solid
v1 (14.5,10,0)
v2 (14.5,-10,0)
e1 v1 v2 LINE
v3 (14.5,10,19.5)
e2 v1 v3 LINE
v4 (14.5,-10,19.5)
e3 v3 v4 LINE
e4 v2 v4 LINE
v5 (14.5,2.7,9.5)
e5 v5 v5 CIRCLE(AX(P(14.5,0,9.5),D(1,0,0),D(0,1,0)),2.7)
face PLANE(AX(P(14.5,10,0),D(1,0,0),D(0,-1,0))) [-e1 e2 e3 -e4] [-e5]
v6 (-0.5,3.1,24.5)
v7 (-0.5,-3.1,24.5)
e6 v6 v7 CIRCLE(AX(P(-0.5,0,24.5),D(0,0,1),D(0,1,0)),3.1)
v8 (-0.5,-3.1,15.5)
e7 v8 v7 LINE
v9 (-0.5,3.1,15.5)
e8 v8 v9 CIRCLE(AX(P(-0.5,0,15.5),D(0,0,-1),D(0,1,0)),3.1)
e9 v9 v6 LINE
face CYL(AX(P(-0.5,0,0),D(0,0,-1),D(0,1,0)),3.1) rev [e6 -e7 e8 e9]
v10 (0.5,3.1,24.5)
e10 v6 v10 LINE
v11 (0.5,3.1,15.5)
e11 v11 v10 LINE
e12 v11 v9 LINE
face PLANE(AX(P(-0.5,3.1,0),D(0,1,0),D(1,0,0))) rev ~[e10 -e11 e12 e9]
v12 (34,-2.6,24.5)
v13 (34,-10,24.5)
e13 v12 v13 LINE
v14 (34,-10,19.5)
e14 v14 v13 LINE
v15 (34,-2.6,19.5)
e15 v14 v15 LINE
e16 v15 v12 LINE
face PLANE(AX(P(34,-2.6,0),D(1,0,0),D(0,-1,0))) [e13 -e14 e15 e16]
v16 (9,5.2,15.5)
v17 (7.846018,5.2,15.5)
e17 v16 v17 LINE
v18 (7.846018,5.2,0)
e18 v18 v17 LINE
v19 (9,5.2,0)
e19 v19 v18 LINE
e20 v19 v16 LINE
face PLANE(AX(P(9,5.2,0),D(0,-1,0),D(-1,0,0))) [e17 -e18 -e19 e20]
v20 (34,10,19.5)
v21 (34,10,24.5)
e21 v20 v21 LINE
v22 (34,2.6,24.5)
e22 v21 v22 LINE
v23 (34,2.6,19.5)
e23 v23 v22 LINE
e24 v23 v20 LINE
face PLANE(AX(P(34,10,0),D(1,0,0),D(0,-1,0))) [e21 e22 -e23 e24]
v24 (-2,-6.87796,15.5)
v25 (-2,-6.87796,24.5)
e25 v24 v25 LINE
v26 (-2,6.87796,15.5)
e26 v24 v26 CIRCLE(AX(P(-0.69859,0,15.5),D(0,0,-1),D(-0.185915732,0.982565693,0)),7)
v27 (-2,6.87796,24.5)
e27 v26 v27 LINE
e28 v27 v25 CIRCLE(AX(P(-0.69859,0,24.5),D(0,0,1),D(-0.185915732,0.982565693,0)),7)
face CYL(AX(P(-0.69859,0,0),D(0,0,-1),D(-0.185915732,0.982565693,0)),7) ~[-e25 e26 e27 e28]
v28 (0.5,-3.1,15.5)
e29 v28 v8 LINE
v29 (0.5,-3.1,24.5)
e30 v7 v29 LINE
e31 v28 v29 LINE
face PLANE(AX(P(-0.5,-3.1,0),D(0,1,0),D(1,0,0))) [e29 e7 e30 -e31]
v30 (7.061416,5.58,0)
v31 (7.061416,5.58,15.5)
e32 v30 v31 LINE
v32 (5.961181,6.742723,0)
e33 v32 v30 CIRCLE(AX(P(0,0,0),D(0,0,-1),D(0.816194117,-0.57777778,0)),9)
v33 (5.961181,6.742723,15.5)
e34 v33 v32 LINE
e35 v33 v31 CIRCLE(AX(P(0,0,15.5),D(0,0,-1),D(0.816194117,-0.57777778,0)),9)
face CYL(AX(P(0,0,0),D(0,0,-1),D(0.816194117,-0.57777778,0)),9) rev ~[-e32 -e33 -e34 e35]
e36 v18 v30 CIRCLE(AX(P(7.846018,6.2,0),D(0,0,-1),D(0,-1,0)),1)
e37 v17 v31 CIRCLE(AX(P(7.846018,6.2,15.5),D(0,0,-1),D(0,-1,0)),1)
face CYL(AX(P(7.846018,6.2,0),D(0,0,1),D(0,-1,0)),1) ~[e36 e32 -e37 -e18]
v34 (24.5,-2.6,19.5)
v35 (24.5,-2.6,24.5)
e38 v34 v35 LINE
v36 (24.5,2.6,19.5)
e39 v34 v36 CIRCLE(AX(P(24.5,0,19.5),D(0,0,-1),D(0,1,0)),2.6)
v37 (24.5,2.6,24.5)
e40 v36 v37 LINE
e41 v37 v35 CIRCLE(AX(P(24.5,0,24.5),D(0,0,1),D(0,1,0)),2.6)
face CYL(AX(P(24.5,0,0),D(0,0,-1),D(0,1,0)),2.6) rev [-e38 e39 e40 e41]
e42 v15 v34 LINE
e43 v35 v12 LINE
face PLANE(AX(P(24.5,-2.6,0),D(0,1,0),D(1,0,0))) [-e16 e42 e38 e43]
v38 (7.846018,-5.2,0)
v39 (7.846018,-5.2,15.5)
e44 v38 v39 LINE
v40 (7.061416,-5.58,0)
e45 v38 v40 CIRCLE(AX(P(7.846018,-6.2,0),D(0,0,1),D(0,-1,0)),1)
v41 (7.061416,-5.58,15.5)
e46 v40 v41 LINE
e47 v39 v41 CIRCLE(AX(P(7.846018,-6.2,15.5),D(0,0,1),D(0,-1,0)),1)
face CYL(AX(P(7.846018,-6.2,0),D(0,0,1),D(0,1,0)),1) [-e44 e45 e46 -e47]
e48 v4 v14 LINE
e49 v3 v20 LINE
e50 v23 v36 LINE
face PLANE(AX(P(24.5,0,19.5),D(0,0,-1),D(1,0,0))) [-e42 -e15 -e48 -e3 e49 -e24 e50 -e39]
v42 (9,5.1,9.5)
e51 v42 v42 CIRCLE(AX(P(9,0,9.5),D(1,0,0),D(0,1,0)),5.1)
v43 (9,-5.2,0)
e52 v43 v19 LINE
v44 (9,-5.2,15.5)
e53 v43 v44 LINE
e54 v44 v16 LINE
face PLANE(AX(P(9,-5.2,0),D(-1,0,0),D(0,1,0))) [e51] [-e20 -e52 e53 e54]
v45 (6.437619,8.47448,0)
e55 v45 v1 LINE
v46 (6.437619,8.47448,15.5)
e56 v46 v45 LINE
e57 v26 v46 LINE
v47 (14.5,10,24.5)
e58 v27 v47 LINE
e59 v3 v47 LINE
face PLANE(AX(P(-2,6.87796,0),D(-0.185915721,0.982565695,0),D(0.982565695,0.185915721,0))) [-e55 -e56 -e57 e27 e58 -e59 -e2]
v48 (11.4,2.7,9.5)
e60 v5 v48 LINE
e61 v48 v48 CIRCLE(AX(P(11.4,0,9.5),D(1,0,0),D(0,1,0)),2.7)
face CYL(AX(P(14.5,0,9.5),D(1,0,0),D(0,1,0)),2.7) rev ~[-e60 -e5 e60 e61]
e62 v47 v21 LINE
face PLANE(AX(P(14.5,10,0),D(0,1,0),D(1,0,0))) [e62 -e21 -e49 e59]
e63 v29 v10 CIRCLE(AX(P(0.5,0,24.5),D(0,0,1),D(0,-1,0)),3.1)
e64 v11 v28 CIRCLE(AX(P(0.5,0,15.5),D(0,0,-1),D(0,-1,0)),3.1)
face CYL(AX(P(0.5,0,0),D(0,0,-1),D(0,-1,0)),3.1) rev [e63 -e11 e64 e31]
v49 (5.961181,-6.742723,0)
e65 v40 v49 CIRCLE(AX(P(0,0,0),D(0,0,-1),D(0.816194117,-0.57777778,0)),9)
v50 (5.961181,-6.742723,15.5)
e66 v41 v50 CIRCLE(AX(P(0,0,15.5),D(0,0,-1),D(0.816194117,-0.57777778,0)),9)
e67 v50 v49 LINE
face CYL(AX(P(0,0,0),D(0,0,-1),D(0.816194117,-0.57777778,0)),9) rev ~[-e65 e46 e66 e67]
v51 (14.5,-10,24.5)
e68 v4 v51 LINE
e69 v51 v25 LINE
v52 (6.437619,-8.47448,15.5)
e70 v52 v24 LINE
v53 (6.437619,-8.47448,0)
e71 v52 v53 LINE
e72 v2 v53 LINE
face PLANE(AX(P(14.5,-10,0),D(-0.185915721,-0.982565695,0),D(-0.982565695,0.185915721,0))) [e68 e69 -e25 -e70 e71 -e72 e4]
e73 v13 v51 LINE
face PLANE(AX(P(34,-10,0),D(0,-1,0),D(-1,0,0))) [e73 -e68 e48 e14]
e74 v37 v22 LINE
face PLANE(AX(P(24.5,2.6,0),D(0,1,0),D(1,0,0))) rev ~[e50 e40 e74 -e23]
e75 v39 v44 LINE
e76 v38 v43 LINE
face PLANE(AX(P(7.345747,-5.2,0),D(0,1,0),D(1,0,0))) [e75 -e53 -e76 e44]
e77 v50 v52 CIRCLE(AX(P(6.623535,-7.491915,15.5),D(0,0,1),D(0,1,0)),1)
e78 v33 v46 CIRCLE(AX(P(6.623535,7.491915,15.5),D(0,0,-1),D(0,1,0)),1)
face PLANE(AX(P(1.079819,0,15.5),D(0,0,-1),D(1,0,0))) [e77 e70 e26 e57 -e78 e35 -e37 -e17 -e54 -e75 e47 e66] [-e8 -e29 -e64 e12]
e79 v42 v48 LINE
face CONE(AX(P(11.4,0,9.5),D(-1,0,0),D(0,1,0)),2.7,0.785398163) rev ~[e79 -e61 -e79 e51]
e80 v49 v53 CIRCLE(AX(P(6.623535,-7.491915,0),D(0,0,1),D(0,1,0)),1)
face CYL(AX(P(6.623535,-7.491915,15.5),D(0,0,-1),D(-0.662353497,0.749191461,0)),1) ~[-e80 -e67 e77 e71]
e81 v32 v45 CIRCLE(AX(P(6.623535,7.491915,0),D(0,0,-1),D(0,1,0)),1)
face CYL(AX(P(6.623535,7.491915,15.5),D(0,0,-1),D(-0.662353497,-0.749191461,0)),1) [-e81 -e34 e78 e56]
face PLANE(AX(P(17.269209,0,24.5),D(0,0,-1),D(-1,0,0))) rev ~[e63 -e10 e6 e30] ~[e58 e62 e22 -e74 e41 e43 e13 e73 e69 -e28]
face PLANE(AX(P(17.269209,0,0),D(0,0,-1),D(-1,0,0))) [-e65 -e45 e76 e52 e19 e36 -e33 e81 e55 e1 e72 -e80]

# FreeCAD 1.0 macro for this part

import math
import FreeCAD as App
import Part
import Sketcher


def edges_at(feature, points):
    """Names of the edges that pass closest to the given points."""
    edges = feature.Shape.Edges
    near = lambda p: min(range(len(edges)), key=lambda i: edges[i].distToShape(Part.Vertex(*p))[0])
    return sorted({f"Edge{near(p) + 1}" for p in points})


def add_polygon(sketch, points):
    """Adds a closed chain of lines whose ends are joined by coincident constraints."""
    first, n = sketch.GeometryCount, len(points)
    for a, b in zip(points, points[1:] + points[:1]):
        sketch.addGeometry(Part.LineSegment(App.Vector(*a, 0), App.Vector(*b, 0)), False)
    for i in range(n):
        sketch.addConstraint(Sketcher.Constraint("Coincident", first + i, 2, first + (i + 1) % n, 1))

doc = App.newDocument("Part")
params = doc.addObject("Spreadsheet::Sheet", "Params")
for row, (alias, value) in enumerate([
    ("sketch1_radius", "7 mm"),
    ("sketch1_radius2", "2.6 mm"),
    ("sketch1_radius3", "3.1 mm"),
    ("sketch1_width", "1 mm"),
    ("sketch1_width2", "19.5 mm"),
    ("pad1_length", "24.5 mm"),
    ("sketch2_width", "15 mm"),
    ("sketch2_height", "12 mm"),
    ("pocket1_length", "14.5 mm"),
    ("sketch3_width", "20 mm"),
    ("pocket2_length", "19.5 mm"),
    ("sketch4_diameter", "5.4 mm"),
    ("sketch5_radius", "9 mm"),
    ("sketch5_height", "10.4 mm"),
    ("pocket4_length", "15.5 mm"),
    ("chamfer_size", "2.4 mm"),
    ("fillet_radius", "1 mm"),
], start=1):
    params.set(f"A{row}", alias)
    params.set(f"B{row}", "=" + value)
    params.setAlias(f"B{row}", alias)

body = doc.addObject("PartDesign::Body", "Body")

sketch1 = body.newObject("Sketcher::SketchObject", "Sketch")
sketch1.AttachmentSupport = (doc.getObject("XY_Plane"), [""])
sketch1.MapMode = "FlatFace"
sketch1.addGeometry(Part.LineSegment(App.Vector(14.5, 10, 0), App.Vector(-2, 6.87796, 0)), False)
sketch1.addGeometry(Part.ArcOfCircle(Part.Circle(App.Vector(-0.69859, 0, 0), App.Vector(0, 0, 1), 7), math.radians(100.714526), math.radians(259.285474)), False)
sketch1.addGeometry(Part.LineSegment(App.Vector(-2, -6.87796, 0), App.Vector(14.5, -10, 0)), False)
sketch1.addGeometry(Part.LineSegment(App.Vector(14.5, -10, 0), App.Vector(34, -10, 0)), False)
sketch1.addGeometry(Part.LineSegment(App.Vector(34, -10, 0), App.Vector(34, -2.6, 0)), False)
sketch1.addGeometry(Part.LineSegment(App.Vector(34, -2.6, 0), App.Vector(24.5, -2.6, 0)), False)
sketch1.addGeometry(Part.ArcOfCircle(Part.Circle(App.Vector(24.5, 0, 0), App.Vector(0, 0, 1), 2.6), math.radians(90), math.radians(270)), False)
sketch1.addGeometry(Part.LineSegment(App.Vector(24.5, 2.6, 0), App.Vector(34, 2.6, 0)), False)
sketch1.addGeometry(Part.LineSegment(App.Vector(34, 2.6, 0), App.Vector(34, 10, 0)), False)
sketch1.addGeometry(Part.LineSegment(App.Vector(34, 10, 0), App.Vector(14.5, 10, 0)), False)
sketch1.addGeometry(Part.LineSegment(App.Vector(-0.5, 3.1, 0), App.Vector(0.5, 3.1, 0)), False)
sketch1.addGeometry(Part.ArcOfCircle(Part.Circle(App.Vector(0.5, 0, 0), App.Vector(0, 0, 1), 3.1), math.radians(-90), math.radians(90)), False)
sketch1.addGeometry(Part.LineSegment(App.Vector(0.5, -3.1, 0), App.Vector(-0.5, -3.1, 0)), False)
sketch1.addGeometry(Part.ArcOfCircle(Part.Circle(App.Vector(-0.5, 0, 0), App.Vector(0, 0, 1), 3.1), math.radians(90), math.radians(270)), False)
sketch1.addConstraint(Sketcher.Constraint("Tangent", 0, 2, 1, 1))
sketch1.addConstraint(Sketcher.Constraint("Tangent", 1, 2, 2, 1))
sketch1.addConstraint(Sketcher.Constraint("Coincident", 2, 2, 3, 1))
sketch1.addConstraint(Sketcher.Constraint("Coincident", 3, 2, 4, 1))
sketch1.addConstraint(Sketcher.Constraint("Coincident", 4, 2, 5, 1))
sketch1.addConstraint(Sketcher.Constraint("Tangent", 5, 2, 6, 2))
sketch1.addConstraint(Sketcher.Constraint("Tangent", 6, 1, 7, 1))
sketch1.addConstraint(Sketcher.Constraint("Coincident", 7, 2, 8, 1))
sketch1.addConstraint(Sketcher.Constraint("Coincident", 8, 2, 9, 1))
sketch1.addConstraint(Sketcher.Constraint("Coincident", 9, 2, 0, 1))
sketch1.addConstraint(Sketcher.Constraint("Tangent", 10, 2, 11, 2))
sketch1.addConstraint(Sketcher.Constraint("Tangent", 11, 1, 12, 1))
sketch1.addConstraint(Sketcher.Constraint("Tangent", 12, 2, 13, 2))
sketch1.addConstraint(Sketcher.Constraint("Tangent", 13, 1, 10, 1))
sketch1.addConstraint(Sketcher.Constraint("Horizontal", 3))
sketch1.addConstraint(Sketcher.Constraint("Vertical", 4))
sketch1.addConstraint(Sketcher.Constraint("Horizontal", 5))
sketch1.addConstraint(Sketcher.Constraint("Horizontal", 7))
sketch1.addConstraint(Sketcher.Constraint("Vertical", 8))
sketch1.addConstraint(Sketcher.Constraint("Horizontal", 9))
sketch1.addConstraint(Sketcher.Constraint("Horizontal", 10))
sketch1.addConstraint(Sketcher.Constraint("Horizontal", 12))
sketch1.addConstraint(Sketcher.Constraint("Symmetric", 11, 3, 13, 3, -1, 1))
sketch1.addConstraint(Sketcher.Constraint("Symmetric", 0, 2, 1, 2, -1))
sketch1.addConstraint(Sketcher.Constraint("Symmetric", 4, 2, 7, 2, -1))
sketch1.addConstraint(Sketcher.Constraint("Vertical", 2, 2, 9, 2))
sketch1.addConstraint(Sketcher.Constraint("Radius", 1, 7.0))
sketch1.addConstraint(Sketcher.Constraint("Radius", 6, 2.6))
sketch1.addConstraint(Sketcher.Constraint("Radius", 11, 3.1))
sketch1.addConstraint(Sketcher.Constraint("DistanceX", 10, 1, 10, 2, 1.0))
sketch1.addConstraint(Sketcher.Constraint("DistanceX", 3, 1, 3, 2, 19.5))
sketch1.addConstraint(Sketcher.Constraint("DistanceX", 5, 2, 5, 1, 9.5))
sketch1.addConstraint(Sketcher.Constraint("DistanceY", 4, 1, 4, 2, 7.4))
sketch1.addConstraint(Sketcher.Constraint("DistanceX", 0, 2, -1, 1, 2.0))
sketch1.addConstraint(Sketcher.Constraint("DistanceX", -1, 1, 3, 2, 34.0))
sketch1.setExpression("Constraints[26]", "Params.sketch1_radius")
sketch1.setExpression("Constraints[27]", "Params.sketch1_radius2")
sketch1.setExpression("Constraints[28]", "Params.sketch1_radius3")
sketch1.setExpression("Constraints[29]", "Params.sketch1_width")
sketch1.setExpression("Constraints[30]", "Params.sketch1_width2")
pad1 = body.newObject("PartDesign::Pad", "Pad")
pad1.Profile = sketch1
pad1.setExpression("Length", "Params.pad1_length")

sketch2 = body.newObject("Sketcher::SketchObject", "Sketch001")
sketch2.AttachmentSupport = (doc.getObject("YZ_Plane"), [""])
sketch2.MapMode = "FlatFace"
sketch2.AttachmentOffset = App.Placement(App.Vector(0, 0, 34), App.Rotation())
add_polygon(sketch2, [(-5.5, 6), (-5.5, -6), (9.5, -6), (9.5, 6)])
sketch2.addConstraint(Sketcher.Constraint("Vertical", 0))
sketch2.addConstraint(Sketcher.Constraint("Horizontal", 1))
sketch2.addConstraint(Sketcher.Constraint("Vertical", 2))
sketch2.addConstraint(Sketcher.Constraint("Horizontal", 3))
sketch2.addConstraint(Sketcher.Constraint("DistanceX", 1, 1, 1, 2, 15.0))
sketch2.addConstraint(Sketcher.Constraint("DistanceY", 0, 2, 0, 1, 12.0))
sketch2.addConstraint(Sketcher.Constraint("DistanceY", 0, 2, -1, 1, 6.0))
sketch2.addConstraint(Sketcher.Constraint("DistanceX", 0, 2, -1, 1, 5.5))
sketch2.setExpression("Constraints[8]", "Params.sketch2_width")
sketch2.setExpression("Constraints[9]", "Params.sketch2_height")
pocket1 = body.newObject("PartDesign::Pocket", "Pocket")
pocket1.Profile = sketch2
pocket1.setExpression("Length", "Params.pocket1_length")

sketch3 = body.newObject("Sketcher::SketchObject", "Sketch002")
sketch3.AttachmentSupport = (doc.getObject("XY_Plane"), [""])
sketch3.MapMode = "FlatFace"
add_polygon(sketch3, [(14.5, -10), (14.5, 10), (34.5, 10), (34.5, -10)])
sketch3.addConstraint(Sketcher.Constraint("Vertical", 0))
sketch3.addConstraint(Sketcher.Constraint("Horizontal", 1))
sketch3.addConstraint(Sketcher.Constraint("Vertical", 2))
sketch3.addConstraint(Sketcher.Constraint("Horizontal", 3))
sketch3.addConstraint(Sketcher.Constraint("Equal", 3, 0))
sketch3.addConstraint(Sketcher.Constraint("DistanceX", 1, 1, 1, 2, 20.0))
sketch3.addConstraint(Sketcher.Constraint("DistanceY", -1, 1, 0, 2, 10.0))
sketch3.addConstraint(Sketcher.Constraint("DistanceX", -1, 1, 0, 2, 14.5))
sketch3.setExpression("Constraints[9]", "Params.sketch3_width")
pocket2 = body.newObject("PartDesign::Pocket", "Pocket001")
pocket2.Profile = sketch3
pocket2.setExpression("Length", "Params.pocket2_length")
pocket2.Reversed = True

sketch4 = body.newObject("Sketcher::SketchObject", "Sketch003")
sketch4.AttachmentSupport = (doc.getObject("YZ_Plane"), [""])
sketch4.MapMode = "FlatFace"
sketch4.AttachmentOffset = App.Placement(App.Vector(0, 0, 14.5), App.Rotation())
sketch4.addGeometry(Part.Circle(App.Vector(0, 9.5, 0), App.Vector(0, 0, 1), 2.7), False)
sketch4.addConstraint(Sketcher.Constraint("PointOnObject", 0, 3, -2))
sketch4.addConstraint(Sketcher.Constraint("Diameter", 0, 5.4))
sketch4.addConstraint(Sketcher.Constraint("DistanceY", -1, 1, 0, 3, 9.5))
sketch4.setExpression("Constraints[1]", "Params.sketch4_diameter")
pocket3 = body.newObject("PartDesign::Pocket", "Pocket002")
pocket3.Profile = sketch4
pocket3.Type = "ThroughAll"

sketch5 = body.newObject("Sketcher::SketchObject", "Sketch004")
sketch5.AttachmentSupport = (doc.getObject("XY_Plane"), [""])
sketch5.MapMode = "FlatFace"
sketch5.addGeometry(Part.ArcOfCircle(Part.Circle(App.Vector(0, 0, 0), App.Vector(0, 0, 1), 9), math.radians(35.294395), math.radians(324.705605)), False)
sketch5.addGeometry(Part.LineSegment(App.Vector(7.345747, 5.2, 0), App.Vector(9, 5.2, 0)), False)
sketch5.addGeometry(Part.LineSegment(App.Vector(9, 5.2, 0), App.Vector(9, -5.2, 0)), False)
sketch5.addGeometry(Part.LineSegment(App.Vector(9, -5.2, 0), App.Vector(7.345747, -5.2, 0)), False)
sketch5.addConstraint(Sketcher.Constraint("Coincident", 0, 1, 1, 1))
sketch5.addConstraint(Sketcher.Constraint("Coincident", 1, 2, 2, 1))
sketch5.addConstraint(Sketcher.Constraint("Coincident", 2, 2, 3, 1))
sketch5.addConstraint(Sketcher.Constraint("Coincident", 3, 2, 0, 2))
sketch5.addConstraint(Sketcher.Constraint("Horizontal", 1))
sketch5.addConstraint(Sketcher.Constraint("Vertical", 2))
sketch5.addConstraint(Sketcher.Constraint("Horizontal", 3))
sketch5.addConstraint(Sketcher.Constraint("Coincident", 0, 3, -1, 1))
sketch5.addConstraint(Sketcher.Constraint("Vertical", 0, 1, 3, 2))
sketch5.addConstraint(Sketcher.Constraint("Radius", 0, 9.0))
sketch5.addConstraint(Sketcher.Constraint("DistanceY", 2, 2, 2, 1, 10.4))
sketch5.addConstraint(Sketcher.Constraint("DistanceX", -1, 1, 1, 2, 9.0))
sketch5.setExpression("Constraints[9]", "Params.sketch5_radius")
sketch5.setExpression("Constraints[10]", "Params.sketch5_height")
pocket4 = body.newObject("PartDesign::Pocket", "Pocket003")
pocket4.Profile = sketch5
pocket4.setExpression("Length", "Params.pocket4_length")
pocket4.Reversed = True
doc.recompute()

chamfer = body.newObject("PartDesign::Chamfer", "Chamfer")
chamfer.Base = (pocket4, edges_at(pocket4, [(9, -2.7, 9.5)]))
chamfer.setExpression("Size", "Params.chamfer_size")
doc.recompute()

fillet = body.newObject("PartDesign::Fillet", "Fillet")
fillet.Base = (chamfer, edges_at(chamfer, [
    (4.071, 8.027, 7.75),
    (7.346, 5.2, 7.75),
    (7.346, -5.2, 7.75),
    (4.071, -8.027, 7.75),
]))
fillet.setExpression("Radius", "Params.fillet_radius")

doc.recompute()
